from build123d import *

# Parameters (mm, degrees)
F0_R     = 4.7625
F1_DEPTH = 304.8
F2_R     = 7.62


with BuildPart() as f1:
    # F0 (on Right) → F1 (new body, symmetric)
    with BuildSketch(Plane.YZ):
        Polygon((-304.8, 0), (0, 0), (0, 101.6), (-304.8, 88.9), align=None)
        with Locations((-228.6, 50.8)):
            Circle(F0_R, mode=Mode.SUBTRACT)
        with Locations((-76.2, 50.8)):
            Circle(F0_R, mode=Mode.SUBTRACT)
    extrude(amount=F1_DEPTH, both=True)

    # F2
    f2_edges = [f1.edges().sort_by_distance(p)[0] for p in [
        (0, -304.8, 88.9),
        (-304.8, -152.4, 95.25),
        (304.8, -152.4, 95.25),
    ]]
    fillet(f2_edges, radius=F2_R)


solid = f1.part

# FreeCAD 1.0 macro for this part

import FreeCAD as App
import Part
import Sketcher

V = App.Vector
Q = App.Units.Quantity


def edges_at(feature, points):
    """Names of the edges that pass closest to the given points."""
    edges = feature.Shape.Edges
    near = lambda p: min(range(len(edges)), key=lambda i: edges[i].distToShape(Part.Vertex(*p))[0])
    return sorted({f"Edge{near(p) + 1}" for p in points})


def add_polygon(sketch, points):
    """Adds a closed chain of lines whose ends are joined by coincident constraints."""
    first, n = sketch.GeometryCount, len(points)
    for a, b in zip(points, points[1:] + points[:1]):
        sketch.addGeometry(Part.LineSegment(App.Vector(*a, 0), App.Vector(*b, 0)), False)
    for i in range(n):
        sketch.addConstraint(Sketcher.Constraint("Coincident", first + i, 2, first + (i + 1) % n, 1))

doc = App.newDocument("Part")
body = doc.addObject("PartDesign::Body", "Body")

# Sketch on YZ plane
sketch1 = doc.addObject("Sketcher::SketchObject", "Sketch")
body.addObject(sketch1)
sketch1.AttachmentSupport = (doc.YZ_Plane, [""])
sketch1.MapMode = "FlatFace"
add_polygon(sketch1, [(-304.8, 0), (0, 0), (0, 101.6), (-304.8, 88.9)])  # lines 0-3
sketch1.addGeometry(Part.Circle(V(-228.6, 50.8, 0), V(0, 0, 1), 4.7625), False)  # 4
sketch1.addGeometry(Part.Circle(V(-76.2, 50.8, 0), V(0, 0, 1), 4.7625), False)  # 5
sketch1.addConstraint(Sketcher.Constraint("Horizontal", 0))
sketch1.addConstraint(Sketcher.Constraint("Vertical", 1))
sketch1.addConstraint(Sketcher.Constraint("Vertical", 3))
sketch1.addConstraint(Sketcher.Constraint("Coincident", 0, 2, -1, 1))
sketch1.addConstraint(Sketcher.Constraint("Equal", 4, 5))
sketch1.addConstraint(Sketcher.Constraint("Horizontal", 4, 3, 5, 3))
sketch1.addConstraint(Sketcher.Constraint("DistanceX", 0, 1, 0, 2, Q("12 in")))
sketch1.addConstraint(Sketcher.Constraint("DistanceY", 1, 1, 1, 2, Q("4 in")))
sketch1.addConstraint(Sketcher.Constraint("Diameter", 4, Q("0.375 in")))
sketch1.addConstraint(Sketcher.Constraint("DistanceY", 3, 2, 3, 1, Q("3.5 in")))
sketch1.addConstraint(Sketcher.Constraint("DistanceX", 4, 3, -1, 1, Q("9 in")))
sketch1.addConstraint(Sketcher.Constraint("DistanceY", -1, 1, 4, 3, Q("2 in")))
sketch1.addConstraint(Sketcher.Constraint("DistanceX", 5, 3, -1, 1, Q("3 in")))
pad1 = doc.addObject("PartDesign::Pad", "Pad")
body.addObject(pad1)
pad1.Profile = sketch1
pad1.Length = Q("24 in")
pad1.Midplane = True
doc.recompute()

fillet = doc.addObject("PartDesign::Fillet", "Fillet")
body.addObject(fillet)
fillet.Base = (pad1, edges_at(pad1, [(0, -304.8, 88.9), (-304.8, -152.4, 95.25), (304.8, -152.4, 95.25)]))
fillet.Radius = Q("0.3 in")

doc.recompute()
